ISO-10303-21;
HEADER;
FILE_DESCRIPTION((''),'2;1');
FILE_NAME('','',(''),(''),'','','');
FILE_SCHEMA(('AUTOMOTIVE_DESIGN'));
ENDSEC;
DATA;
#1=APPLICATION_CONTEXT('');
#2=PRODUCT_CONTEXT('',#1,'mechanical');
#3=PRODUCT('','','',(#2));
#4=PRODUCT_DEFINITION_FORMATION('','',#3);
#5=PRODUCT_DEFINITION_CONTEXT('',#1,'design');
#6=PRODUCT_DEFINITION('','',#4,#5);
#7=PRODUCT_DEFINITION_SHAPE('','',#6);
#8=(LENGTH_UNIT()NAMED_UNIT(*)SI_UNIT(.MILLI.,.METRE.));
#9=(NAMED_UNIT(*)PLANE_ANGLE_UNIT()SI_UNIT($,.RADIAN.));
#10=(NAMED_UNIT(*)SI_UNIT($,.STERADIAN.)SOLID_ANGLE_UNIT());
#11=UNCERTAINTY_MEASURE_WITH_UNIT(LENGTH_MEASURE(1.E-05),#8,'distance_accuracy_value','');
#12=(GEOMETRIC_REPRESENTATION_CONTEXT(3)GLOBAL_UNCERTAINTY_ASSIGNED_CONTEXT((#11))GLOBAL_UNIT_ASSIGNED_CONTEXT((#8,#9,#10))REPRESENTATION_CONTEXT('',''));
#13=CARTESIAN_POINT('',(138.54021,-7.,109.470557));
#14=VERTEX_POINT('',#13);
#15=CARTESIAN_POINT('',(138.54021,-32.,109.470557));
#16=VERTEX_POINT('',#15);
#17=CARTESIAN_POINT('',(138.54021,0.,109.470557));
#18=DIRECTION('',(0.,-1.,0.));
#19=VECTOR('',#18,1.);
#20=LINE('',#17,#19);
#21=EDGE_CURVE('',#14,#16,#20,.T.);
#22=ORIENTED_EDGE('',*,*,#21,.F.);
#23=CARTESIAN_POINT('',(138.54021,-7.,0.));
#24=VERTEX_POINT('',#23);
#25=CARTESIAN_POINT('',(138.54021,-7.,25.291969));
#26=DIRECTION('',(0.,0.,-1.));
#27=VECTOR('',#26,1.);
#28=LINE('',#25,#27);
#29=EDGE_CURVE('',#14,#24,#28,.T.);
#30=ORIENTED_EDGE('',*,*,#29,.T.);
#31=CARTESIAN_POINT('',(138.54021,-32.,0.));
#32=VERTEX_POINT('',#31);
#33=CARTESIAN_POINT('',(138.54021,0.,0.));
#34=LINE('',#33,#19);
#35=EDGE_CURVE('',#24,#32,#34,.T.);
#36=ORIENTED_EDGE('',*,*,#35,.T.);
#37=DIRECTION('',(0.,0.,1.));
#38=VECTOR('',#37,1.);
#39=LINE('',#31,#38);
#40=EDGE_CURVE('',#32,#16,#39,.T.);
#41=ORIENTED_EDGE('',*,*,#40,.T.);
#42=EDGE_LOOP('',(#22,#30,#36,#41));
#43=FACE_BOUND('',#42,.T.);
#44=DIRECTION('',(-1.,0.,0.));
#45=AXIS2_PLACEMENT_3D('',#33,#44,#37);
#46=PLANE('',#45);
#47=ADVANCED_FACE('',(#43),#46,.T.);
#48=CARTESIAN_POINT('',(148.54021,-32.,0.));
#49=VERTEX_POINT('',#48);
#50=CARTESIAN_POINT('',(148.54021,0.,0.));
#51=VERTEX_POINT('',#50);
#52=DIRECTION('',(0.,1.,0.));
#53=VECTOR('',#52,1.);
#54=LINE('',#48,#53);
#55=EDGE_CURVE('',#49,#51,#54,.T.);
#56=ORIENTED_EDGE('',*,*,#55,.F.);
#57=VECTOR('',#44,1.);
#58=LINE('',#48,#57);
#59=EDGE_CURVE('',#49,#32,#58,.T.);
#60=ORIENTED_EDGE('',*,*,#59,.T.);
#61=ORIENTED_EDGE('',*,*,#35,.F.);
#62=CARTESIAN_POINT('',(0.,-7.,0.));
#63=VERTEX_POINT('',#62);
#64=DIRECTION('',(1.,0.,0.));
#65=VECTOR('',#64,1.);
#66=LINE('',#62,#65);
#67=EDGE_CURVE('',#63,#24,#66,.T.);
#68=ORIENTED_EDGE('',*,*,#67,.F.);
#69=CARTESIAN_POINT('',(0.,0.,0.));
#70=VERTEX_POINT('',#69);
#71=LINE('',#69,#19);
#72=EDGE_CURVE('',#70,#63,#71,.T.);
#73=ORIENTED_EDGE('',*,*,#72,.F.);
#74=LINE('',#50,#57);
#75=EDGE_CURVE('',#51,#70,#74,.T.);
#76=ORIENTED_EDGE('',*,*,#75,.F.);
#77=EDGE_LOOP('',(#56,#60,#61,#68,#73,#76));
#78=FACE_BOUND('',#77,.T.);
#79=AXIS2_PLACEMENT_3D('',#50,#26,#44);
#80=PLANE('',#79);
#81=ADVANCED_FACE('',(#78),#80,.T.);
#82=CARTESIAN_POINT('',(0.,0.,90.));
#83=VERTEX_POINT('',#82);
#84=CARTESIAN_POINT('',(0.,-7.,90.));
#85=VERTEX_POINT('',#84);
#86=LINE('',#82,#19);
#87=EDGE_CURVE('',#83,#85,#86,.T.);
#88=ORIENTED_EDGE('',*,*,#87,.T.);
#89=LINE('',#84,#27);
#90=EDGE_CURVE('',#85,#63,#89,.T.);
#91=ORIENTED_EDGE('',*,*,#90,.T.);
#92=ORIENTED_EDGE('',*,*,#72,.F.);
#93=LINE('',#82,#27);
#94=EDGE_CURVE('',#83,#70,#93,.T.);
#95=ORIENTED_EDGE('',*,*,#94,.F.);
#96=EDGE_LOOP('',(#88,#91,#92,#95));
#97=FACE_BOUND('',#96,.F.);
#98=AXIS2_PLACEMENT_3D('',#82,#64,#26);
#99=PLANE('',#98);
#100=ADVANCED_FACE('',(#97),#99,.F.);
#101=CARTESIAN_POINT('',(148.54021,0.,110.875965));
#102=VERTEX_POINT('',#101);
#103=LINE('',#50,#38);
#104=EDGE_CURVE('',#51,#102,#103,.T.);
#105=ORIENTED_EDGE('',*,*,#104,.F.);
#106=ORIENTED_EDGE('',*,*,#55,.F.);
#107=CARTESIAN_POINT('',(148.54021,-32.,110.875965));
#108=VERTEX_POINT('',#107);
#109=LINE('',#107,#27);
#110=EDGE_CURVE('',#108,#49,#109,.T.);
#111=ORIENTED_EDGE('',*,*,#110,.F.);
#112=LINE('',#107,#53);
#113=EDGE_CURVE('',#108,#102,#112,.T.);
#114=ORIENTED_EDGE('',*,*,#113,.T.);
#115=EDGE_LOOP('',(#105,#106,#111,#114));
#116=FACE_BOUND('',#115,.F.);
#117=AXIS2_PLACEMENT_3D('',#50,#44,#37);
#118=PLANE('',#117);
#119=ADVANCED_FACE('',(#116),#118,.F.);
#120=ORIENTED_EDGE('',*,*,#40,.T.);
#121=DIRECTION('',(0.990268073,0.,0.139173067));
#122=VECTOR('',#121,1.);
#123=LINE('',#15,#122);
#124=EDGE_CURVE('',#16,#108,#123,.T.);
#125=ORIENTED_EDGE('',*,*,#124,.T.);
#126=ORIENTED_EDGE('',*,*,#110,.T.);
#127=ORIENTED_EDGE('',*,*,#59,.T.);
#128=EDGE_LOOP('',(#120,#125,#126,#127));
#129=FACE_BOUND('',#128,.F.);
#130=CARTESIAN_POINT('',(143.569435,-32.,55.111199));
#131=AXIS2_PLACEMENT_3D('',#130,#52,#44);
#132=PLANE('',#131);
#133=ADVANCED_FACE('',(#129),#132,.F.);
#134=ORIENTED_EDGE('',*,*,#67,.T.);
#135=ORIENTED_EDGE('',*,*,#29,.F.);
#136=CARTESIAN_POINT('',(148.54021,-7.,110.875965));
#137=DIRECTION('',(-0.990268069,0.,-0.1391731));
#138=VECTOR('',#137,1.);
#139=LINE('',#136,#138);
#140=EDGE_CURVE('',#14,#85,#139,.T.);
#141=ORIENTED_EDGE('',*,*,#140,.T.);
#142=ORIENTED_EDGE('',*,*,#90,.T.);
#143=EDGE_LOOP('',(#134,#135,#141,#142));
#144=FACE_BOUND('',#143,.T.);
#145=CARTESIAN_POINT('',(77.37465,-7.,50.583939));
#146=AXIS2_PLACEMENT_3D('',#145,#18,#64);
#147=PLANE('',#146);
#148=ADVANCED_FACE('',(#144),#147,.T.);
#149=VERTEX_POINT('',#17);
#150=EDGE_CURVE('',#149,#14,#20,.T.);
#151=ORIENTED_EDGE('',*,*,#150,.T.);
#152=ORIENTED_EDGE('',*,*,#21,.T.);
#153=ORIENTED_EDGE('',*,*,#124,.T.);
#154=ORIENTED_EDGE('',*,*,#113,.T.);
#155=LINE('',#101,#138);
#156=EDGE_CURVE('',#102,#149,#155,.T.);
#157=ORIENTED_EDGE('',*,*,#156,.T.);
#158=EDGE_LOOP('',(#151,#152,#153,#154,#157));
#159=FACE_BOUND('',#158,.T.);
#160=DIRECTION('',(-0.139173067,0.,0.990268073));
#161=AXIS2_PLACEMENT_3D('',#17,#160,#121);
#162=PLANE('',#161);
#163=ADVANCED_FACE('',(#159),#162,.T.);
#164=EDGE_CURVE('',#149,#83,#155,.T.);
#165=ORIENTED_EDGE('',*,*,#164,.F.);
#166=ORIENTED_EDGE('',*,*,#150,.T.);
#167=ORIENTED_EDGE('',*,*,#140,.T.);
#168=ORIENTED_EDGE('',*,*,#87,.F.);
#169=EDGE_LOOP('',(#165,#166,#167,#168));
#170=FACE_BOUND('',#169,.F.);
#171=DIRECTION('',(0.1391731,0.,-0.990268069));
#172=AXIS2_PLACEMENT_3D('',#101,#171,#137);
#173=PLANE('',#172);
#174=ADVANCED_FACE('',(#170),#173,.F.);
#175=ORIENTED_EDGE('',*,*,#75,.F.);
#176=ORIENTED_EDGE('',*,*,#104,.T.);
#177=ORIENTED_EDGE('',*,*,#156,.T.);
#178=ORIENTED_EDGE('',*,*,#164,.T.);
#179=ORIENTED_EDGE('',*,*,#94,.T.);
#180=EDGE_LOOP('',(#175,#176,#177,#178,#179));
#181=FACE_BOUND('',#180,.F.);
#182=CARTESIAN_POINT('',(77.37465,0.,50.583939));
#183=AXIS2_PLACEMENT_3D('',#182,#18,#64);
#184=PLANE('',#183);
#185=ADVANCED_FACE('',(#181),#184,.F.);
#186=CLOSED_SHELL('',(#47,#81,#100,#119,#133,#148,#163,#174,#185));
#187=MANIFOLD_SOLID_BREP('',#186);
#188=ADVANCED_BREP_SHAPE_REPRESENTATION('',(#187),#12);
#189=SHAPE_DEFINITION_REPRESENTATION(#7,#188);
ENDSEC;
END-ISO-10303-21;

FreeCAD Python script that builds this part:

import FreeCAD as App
import Part
import Sketcher
from FreeCAD import Vector
Q = App.Units.Quantity

doc = App.newDocument("Part")
params = doc.addObject("Spreadsheet::Sheet", "Params")
for row, (alias, value) in enumerate([
    ("sketch1_height", "90 mm"),
    ("sketch1_length", "150 mm"),
    ("pad1_length", "7 mm"),
    ("sketch2_width", "10 mm"),
    ("pad2_length", "32 mm"),
], start=1):
    params.set(f"A{row}", alias)
    params.set(f"B{row}", "=" + value)
    params.setAlias(f"B{row}", alias)

body = doc.addObject("PartDesign::Body", "Body")

# Sketch on XZ plane
sketch1 = body.newObject("Sketcher::SketchObject", "Sketch")
sketch1.AttachmentSupport = (doc.getObject("XZ_Plane"), [""])
sketch1.MapMode = "FlatFace"
sketch1.addGeometry([
    Part.LineSegment(Vector(0, 90, 0), Vector(0, 0, 0)),
    Part.LineSegment(Vector(0, 0, 0), Vector(149, 0, 0)),
    Part.LineSegment(Vector(149, 0, 0), Vector(149, 111, 0)),
    Part.LineSegment(Vector(149, 111, 0), Vector(0, 90, 0)),
], False)
sketch1.addConstraint([
    Sketcher.Constraint("Coincident", 0, 2, 1, 1),
    Sketcher.Constraint("Coincident", 1, 2, 2, 1),
    Sketcher.Constraint("Coincident", 2, 2, 3, 1),
    Sketcher.Constraint("Coincident", 3, 2, 0, 1),
    Sketcher.Constraint("Vertical", 0),
    Sketcher.Constraint("Horizontal", 1),
    Sketcher.Constraint("Vertical", 2),
    Sketcher.Constraint("Coincident", 0, 2, -1, 1),
    Sketcher.Constraint("DistanceY", 0, 2, 0, 1, 90.0),
    Sketcher.Constraint("Angle", 3, Q("-172 deg")),
    Sketcher.Constraint("Distance", 3, 150.0),
])
sketch1.setExpression("Constraints[8]", "Params.sketch1_height")
sketch1.setExpression("Constraints[10]", "Params.sketch1_length")
pad1 = body.newObject("PartDesign::Pad", "Pad")
pad1.Profile = sketch1
pad1.setExpression("Length", "Params.pad1_length")

# Sketch on XZ plane
sketch2 = body.newObject("Sketcher::SketchObject", "Sketch001")
sketch2.AttachmentSupport = (doc.getObject("XZ_Plane"), [""])
sketch2.MapMode = "FlatFace"
sketch2.addGeometry([
    Part.LineSegment(Vector(139, 109, 0), Vector(149, 111, 0)),
    Part.LineSegment(Vector(149, 111, 0), Vector(149, 0, 0)),
    Part.LineSegment(Vector(149, 0, 0), Vector(139, 0, 0)),
    Part.LineSegment(Vector(139, 0, 0), Vector(139, 109, 0)),
], False)
sketch2.addConstraint([
    Sketcher.Constraint("Coincident", 0, 2, 1, 1),
    Sketcher.Constraint("Coincident", 1, 2, 2, 1),
    Sketcher.Constraint("Coincident", 2, 2, 3, 1),
    Sketcher.Constraint("Coincident", 3, 2, 0, 1),
    Sketcher.Constraint("Vertical", 1),
    Sketcher.Constraint("Horizontal", 2),
    Sketcher.Constraint("Vertical", 3),
    Sketcher.Constraint("PointOnObject", 1, 2, -1),
    Sketcher.Constraint("DistanceX", 2, 2, 2, 1, 10.0),
    Sketcher.Constraint("Angle", 0, Q("7.999998 deg")),
    Sketcher.Constraint("DistanceY", 1, 2, 1, 1, 110.875965),
    Sketcher.Constraint("DistanceX", -1, 1, 0, 2, 148.54021),
])
sketch2.setExpression("Constraints[8]", "Params.sketch2_width")
pad2 = body.newObject("PartDesign::Pad", "Pad001")
pad2.Profile = sketch2
pad2.setExpression("Length", "Params.pad2_length")

doc.recompute()
